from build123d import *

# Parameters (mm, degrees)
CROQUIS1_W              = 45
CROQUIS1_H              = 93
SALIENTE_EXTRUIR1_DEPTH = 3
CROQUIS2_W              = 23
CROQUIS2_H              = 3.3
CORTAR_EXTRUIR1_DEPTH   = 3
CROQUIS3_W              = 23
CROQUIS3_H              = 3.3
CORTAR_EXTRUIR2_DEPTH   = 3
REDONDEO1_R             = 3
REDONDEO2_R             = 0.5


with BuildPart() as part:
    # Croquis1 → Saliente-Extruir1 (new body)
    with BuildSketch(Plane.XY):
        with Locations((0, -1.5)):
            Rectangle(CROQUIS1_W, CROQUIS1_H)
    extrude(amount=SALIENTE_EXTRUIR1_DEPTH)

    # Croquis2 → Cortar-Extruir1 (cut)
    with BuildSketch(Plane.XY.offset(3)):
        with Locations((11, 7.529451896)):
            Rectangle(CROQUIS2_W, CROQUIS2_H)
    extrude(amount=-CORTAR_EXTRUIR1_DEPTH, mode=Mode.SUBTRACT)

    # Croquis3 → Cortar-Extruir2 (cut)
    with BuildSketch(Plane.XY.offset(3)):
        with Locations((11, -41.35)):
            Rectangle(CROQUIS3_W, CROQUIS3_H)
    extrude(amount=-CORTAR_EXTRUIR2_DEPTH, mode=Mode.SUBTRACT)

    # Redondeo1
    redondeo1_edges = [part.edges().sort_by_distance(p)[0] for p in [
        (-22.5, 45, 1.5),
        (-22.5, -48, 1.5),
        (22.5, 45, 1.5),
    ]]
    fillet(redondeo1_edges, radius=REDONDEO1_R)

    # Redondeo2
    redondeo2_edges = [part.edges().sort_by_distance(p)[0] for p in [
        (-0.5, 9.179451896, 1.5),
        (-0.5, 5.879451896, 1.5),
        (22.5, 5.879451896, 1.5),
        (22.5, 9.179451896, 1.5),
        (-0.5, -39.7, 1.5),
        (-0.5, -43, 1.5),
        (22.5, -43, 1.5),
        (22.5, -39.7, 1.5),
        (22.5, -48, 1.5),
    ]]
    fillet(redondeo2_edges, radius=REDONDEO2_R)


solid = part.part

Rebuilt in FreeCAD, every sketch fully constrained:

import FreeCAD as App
import Part
import Sketcher

V = App.Vector
Q = App.Units.Quantity


def edges_at(feature, points):
    """Names of the edges that pass closest to the given points."""
    edges = feature.Shape.Edges
    near = lambda p: min(range(len(edges)), key=lambda i: edges[i].distToShape(Part.Vertex(*p))[0])
    return sorted({f"Edge{near(p) + 1}" for p in points})


def add_polygon(sketch, points):
    """Adds a closed chain of lines whose ends are joined by coincident constraints."""
    first, n = sketch.GeometryCount, len(points)
    for a, b in zip(points, points[1:] + points[:1]):
        sketch.addGeometry(Part.LineSegment(App.Vector(*a, 0), App.Vector(*b, 0)), False)
    for i in range(n):
        sketch.addConstraint(Sketcher.Constraint("Coincident", first + i, 2, first + (i + 1) % n, 1))

doc = App.newDocument("Part")
body = doc.addObject("PartDesign::Body", "Body")

# Sketch on XY plane
sketch1 = body.newObject("Sketcher::SketchObject", "Sketch")
sketch1.AttachmentSupport = (doc.getObject("XY_Plane"), [""])
sketch1.MapMode = "FlatFace"
add_polygon(sketch1, [(-22.5, 45), (-22.5, -48), (22.5, -48), (22.5, 45)])  # lines 0-3
sketch1.addConstraint([
    Sketcher.Constraint("Vertical", 0),
    Sketcher.Constraint("Horizontal", 1),
    Sketcher.Constraint("Vertical", 2),
    Sketcher.Constraint("Horizontal", 3),
    Sketcher.Constraint("DistanceX", 1, 1, 1, 2, Q("45 mm")),
    Sketcher.Constraint("DistanceY", 0, 2, 0, 1, Q("93 mm")),
    Sketcher.Constraint("DistanceY", 0, 2, -1, 1, Q("48 mm")),
    Sketcher.Constraint("DistanceX", 0, 2, -1, 1, Q("22.5 mm")),
])
pad1 = body.newObject("PartDesign::Pad", "Pad")
pad1.Profile = sketch1
pad1.Length = 3

# Sketch on XY plane
sketch2 = body.newObject("Sketcher::SketchObject", "Sketch001")
sketch2.AttachmentSupport = (doc.getObject("XY_Plane"), [""])
sketch2.MapMode = "FlatFace"
sketch2.AttachmentOffset = App.Placement(V(0, 0, 3), App.Rotation())
add_polygon(sketch2, [(-0.5, 9.179452), (-0.5, 5.879452), (22.5, 5.879452), (22.5, 9.179452)])  # lines 0-3
sketch2.addConstraint([
    Sketcher.Constraint("Vertical", 0),
    Sketcher.Constraint("Horizontal", 1),
    Sketcher.Constraint("Vertical", 2),
    Sketcher.Constraint("Horizontal", 3),
    Sketcher.Constraint("DistanceX", 1, 1, 1, 2, Q("23 mm")),
    Sketcher.Constraint("DistanceY", 0, 2, 0, 1, Q("3.3 mm")),
    Sketcher.Constraint("DistanceX", 0, 2, -1, 1, Q("0.5 mm")),
    Sketcher.Constraint("DistanceY", -1, 1, 0, 2, Q("5.879452 mm")),
])
pocket1 = body.newObject("PartDesign::Pocket", "Pocket")
pocket1.Profile = sketch2
pocket1.Length = 3

# Sketch on XY plane
sketch3 = body.newObject("Sketcher::SketchObject", "Sketch002")
sketch3.AttachmentSupport = (doc.getObject("XY_Plane"), [""])
sketch3.MapMode = "FlatFace"
sketch3.AttachmentOffset = App.Placement(V(0, 0, 3), App.Rotation())
add_polygon(sketch3, [(-0.5, -39.7), (-0.5, -43), (22.5, -43), (22.5, -39.7)])  # lines 0-3
sketch3.addConstraint([
    Sketcher.Constraint("Vertical", 0),
    Sketcher.Constraint("Horizontal", 1),
    Sketcher.Constraint("Vertical", 2),
    Sketcher.Constraint("Horizontal", 3),
    Sketcher.Constraint("DistanceX", 1, 1, 1, 2, Q("23 mm")),
    Sketcher.Constraint("DistanceY", 0, 2, 0, 1, Q("3.3 mm")),
    Sketcher.Constraint("DistanceY", 0, 2, -1, 1, Q("43 mm")),
    Sketcher.Constraint("DistanceX", 0, 2, -1, 1, Q("0.5 mm")),
])
pocket2 = body.newObject("PartDesign::Pocket", "Pocket001")
pocket2.Profile = sketch3
pocket2.Length = 3
doc.recompute()

fillet = body.newObject("PartDesign::Fillet", "Fillet")
fillet.Base = (pocket2, edges_at(pocket2, [(-22.5, 45, 1.5), (-22.5, -48, 1.5), (22.5, 45, 1.5)]))
fillet.Radius = 3
doc.recompute()

fillet2 = body.newObject("PartDesign::Fillet", "Fillet001")
fillet2.Base = (fillet, edges_at(fillet, [
    (-0.5, 9.179, 1.5),
    (-0.5, 5.879, 1.5),
    (22.5, 5.879, 1.5),
    (22.5, 9.179, 1.5),
    (-0.5, -39.7, 1.5),
    (-0.5, -43, 1.5),
    (22.5, -43, 1.5),
    (22.5, -39.7, 1.5),
    (22.5, -48, 1.5),
]))
fillet2.Radius = 0.5

doc.recompute()
